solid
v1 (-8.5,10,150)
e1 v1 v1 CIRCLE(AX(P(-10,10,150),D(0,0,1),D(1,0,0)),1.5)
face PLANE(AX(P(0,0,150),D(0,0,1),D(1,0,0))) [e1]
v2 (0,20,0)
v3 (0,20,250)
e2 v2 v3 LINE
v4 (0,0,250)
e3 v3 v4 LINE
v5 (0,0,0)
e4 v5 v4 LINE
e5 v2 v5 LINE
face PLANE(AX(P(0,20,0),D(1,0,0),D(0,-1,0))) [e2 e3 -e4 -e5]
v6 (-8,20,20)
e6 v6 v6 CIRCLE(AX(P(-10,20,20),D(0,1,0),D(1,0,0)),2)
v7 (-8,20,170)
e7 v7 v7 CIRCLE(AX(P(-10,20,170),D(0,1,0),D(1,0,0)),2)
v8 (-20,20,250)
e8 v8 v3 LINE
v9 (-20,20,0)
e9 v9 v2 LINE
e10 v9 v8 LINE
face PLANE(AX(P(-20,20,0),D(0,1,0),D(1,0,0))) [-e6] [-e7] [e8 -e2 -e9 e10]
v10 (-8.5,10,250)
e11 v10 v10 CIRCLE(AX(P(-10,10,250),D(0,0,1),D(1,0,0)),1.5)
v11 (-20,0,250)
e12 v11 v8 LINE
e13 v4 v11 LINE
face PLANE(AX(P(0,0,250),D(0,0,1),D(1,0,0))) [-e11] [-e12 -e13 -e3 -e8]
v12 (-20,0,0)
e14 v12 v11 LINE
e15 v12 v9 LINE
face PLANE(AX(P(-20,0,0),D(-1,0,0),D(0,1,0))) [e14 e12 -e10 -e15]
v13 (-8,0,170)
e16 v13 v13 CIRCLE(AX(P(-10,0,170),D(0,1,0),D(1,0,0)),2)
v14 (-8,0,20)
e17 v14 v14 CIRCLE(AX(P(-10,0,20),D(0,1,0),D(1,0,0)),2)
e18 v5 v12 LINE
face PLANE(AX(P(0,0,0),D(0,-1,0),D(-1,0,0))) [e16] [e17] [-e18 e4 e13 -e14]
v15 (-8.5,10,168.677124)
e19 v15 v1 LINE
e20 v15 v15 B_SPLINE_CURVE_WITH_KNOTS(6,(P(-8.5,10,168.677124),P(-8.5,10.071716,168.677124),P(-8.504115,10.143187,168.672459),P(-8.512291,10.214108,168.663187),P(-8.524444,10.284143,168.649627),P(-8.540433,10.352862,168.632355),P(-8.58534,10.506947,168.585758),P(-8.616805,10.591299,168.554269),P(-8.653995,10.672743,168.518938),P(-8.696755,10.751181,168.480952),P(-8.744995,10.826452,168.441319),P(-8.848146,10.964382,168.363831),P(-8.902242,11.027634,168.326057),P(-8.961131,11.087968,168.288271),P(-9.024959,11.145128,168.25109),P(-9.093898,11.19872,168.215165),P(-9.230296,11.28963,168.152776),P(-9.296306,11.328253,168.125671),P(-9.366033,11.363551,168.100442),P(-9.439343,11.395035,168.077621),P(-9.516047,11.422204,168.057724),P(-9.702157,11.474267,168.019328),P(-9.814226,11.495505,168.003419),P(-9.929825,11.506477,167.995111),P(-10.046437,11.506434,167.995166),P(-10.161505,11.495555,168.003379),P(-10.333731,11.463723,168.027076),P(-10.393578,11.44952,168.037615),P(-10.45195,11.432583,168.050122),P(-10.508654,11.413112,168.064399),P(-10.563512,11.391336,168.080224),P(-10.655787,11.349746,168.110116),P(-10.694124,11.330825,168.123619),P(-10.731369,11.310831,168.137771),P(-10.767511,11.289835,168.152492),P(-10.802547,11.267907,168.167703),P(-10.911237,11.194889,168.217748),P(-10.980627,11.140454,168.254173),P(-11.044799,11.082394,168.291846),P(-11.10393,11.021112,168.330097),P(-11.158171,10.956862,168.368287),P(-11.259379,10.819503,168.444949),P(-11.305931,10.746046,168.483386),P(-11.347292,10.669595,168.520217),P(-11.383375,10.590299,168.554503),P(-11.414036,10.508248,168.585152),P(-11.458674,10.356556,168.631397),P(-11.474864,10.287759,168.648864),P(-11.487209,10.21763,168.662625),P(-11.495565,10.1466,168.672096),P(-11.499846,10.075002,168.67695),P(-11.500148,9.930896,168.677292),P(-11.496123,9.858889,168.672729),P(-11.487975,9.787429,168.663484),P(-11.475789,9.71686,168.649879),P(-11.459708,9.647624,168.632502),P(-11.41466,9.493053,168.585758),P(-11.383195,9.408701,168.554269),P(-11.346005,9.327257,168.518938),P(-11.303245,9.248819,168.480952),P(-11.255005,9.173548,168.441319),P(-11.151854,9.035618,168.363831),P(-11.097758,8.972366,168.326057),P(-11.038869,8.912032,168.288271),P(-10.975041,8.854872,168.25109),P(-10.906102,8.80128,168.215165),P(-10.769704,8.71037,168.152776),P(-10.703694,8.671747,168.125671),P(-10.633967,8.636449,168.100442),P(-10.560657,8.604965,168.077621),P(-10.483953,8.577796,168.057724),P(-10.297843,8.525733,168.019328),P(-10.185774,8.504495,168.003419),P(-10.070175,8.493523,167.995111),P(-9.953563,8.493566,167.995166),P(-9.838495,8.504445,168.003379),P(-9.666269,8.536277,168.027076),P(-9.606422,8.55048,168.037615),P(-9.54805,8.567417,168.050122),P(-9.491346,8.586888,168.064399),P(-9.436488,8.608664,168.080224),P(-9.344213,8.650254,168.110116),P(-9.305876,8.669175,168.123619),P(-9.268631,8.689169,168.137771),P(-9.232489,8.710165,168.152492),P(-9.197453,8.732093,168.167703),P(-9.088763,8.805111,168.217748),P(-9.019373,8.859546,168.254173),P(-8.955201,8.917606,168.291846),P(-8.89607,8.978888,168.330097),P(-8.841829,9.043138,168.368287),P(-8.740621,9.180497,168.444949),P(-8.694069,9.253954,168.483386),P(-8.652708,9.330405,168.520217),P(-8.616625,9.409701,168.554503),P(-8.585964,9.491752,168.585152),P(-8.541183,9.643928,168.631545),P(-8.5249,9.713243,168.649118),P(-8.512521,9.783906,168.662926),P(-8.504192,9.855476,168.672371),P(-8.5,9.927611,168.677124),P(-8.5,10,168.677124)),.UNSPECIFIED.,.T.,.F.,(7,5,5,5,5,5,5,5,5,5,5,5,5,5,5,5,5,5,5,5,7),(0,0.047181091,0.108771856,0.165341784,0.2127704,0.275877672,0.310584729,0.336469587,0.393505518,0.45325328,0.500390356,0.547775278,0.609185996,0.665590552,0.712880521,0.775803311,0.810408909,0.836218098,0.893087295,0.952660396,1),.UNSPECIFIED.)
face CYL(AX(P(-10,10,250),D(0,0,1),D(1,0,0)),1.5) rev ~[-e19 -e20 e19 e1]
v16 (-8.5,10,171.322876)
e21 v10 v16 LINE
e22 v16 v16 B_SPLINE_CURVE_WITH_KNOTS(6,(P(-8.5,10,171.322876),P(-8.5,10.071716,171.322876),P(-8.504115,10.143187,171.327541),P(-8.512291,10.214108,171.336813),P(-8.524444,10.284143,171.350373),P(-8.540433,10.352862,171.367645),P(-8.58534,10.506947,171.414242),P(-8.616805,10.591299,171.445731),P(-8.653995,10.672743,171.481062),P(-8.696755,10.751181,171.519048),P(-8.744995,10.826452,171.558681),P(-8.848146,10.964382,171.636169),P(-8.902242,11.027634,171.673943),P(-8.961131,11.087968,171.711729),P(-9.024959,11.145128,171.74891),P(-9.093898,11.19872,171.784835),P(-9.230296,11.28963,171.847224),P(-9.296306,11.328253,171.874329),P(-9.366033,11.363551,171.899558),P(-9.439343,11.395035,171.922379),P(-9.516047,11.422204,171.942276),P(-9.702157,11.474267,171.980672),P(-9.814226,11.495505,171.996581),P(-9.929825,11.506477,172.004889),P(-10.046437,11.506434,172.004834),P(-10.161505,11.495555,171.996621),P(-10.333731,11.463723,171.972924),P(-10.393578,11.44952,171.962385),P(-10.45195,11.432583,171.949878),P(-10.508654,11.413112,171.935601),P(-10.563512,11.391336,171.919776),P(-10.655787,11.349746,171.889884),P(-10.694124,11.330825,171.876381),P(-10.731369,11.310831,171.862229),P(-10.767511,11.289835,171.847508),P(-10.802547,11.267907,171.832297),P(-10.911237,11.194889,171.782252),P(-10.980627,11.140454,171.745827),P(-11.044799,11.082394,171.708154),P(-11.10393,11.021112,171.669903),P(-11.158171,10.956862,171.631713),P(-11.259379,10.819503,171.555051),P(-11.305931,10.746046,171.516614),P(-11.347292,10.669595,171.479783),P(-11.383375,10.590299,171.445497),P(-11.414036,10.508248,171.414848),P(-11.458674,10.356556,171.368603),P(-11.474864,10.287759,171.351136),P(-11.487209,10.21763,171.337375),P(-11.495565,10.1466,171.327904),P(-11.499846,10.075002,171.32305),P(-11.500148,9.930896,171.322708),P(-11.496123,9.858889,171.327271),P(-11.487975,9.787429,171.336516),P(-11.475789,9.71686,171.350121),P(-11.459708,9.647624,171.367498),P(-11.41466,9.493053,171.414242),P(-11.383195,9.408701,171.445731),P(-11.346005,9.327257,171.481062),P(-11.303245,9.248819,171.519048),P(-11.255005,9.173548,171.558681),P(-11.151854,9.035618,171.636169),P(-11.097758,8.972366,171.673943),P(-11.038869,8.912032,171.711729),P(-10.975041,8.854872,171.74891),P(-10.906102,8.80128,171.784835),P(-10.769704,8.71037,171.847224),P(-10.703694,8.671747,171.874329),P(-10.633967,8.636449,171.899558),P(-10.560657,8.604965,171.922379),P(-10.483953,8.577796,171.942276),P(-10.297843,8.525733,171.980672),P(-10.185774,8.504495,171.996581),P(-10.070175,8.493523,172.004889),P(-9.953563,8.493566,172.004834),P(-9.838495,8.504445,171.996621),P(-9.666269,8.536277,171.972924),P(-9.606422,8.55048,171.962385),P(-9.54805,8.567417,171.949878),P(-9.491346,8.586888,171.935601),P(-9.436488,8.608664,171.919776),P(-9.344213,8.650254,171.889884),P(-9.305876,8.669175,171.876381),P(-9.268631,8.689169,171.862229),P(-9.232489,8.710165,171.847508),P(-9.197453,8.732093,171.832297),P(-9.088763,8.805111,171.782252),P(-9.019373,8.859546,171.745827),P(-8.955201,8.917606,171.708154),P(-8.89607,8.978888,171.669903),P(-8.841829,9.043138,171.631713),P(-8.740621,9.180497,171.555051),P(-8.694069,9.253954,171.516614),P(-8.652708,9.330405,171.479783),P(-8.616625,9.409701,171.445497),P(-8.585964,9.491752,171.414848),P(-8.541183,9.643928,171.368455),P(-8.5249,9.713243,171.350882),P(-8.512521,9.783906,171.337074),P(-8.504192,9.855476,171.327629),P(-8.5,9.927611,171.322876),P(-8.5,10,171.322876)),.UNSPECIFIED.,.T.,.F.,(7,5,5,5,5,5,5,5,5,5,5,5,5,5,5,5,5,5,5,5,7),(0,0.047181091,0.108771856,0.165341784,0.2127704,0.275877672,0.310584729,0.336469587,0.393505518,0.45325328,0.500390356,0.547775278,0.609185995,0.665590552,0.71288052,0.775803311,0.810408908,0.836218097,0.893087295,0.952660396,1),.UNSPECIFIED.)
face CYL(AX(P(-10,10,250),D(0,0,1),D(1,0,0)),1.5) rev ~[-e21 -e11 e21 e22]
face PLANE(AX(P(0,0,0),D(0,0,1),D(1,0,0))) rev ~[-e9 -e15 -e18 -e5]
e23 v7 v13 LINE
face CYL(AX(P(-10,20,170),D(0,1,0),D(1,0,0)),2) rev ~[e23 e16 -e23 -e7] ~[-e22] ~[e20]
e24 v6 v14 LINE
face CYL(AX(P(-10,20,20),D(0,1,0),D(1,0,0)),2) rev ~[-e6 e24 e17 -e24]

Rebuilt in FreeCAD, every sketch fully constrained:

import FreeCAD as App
import Part
import Sketcher


def add_polygon(sketch, points):
    """Adds a closed chain of lines whose ends are joined by coincident constraints."""
    first, n = sketch.GeometryCount, len(points)
    for a, b in zip(points, points[1:] + points[:1]):
        sketch.addGeometry(Part.LineSegment(App.Vector(*a, 0), App.Vector(*b, 0)), False)
    for i in range(n):
        sketch.addConstraint(Sketcher.Constraint("Coincident", first + i, 2, first + (i + 1) % n, 1))

doc = App.newDocument("Part")
body = doc.addObject("PartDesign::Body", "Body")

sketch1 = body.newObject("Sketcher::SketchObject", "Sketch")
sketch1.AttachmentSupport = (doc.getObject("XY_Plane"), [""])
sketch1.MapMode = "FlatFace"
add_polygon(sketch1, [(-20, 0), (0, 0), (0, 20), (-20, 20)])
sketch1.addConstraint(Sketcher.Constraint("Horizontal", 0))
sketch1.addConstraint(Sketcher.Constraint("Vertical", 1))
sketch1.addConstraint(Sketcher.Constraint("Horizontal", 2))
sketch1.addConstraint(Sketcher.Constraint("Vertical", 3))
sketch1.addConstraint(Sketcher.Constraint("Coincident", 0, 2, -1, 1))
sketch1.addConstraint(Sketcher.Constraint("Equal", 2, 1))
sketch1.addConstraint(Sketcher.Constraint("DistanceX", 0, 1, 0, 2, 20.0))
pad1 = body.newObject("PartDesign::Pad", "Pad")
pad1.Profile = sketch1
pad1.Length = 250

sketch2 = body.newObject("Sketcher::SketchObject", "Sketch001")
sketch2.AttachmentSupport = (doc.getObject("XY_Plane"), [""])
sketch2.MapMode = "FlatFace"
sketch2.AttachmentOffset = App.Placement(App.Vector(0, 0, 250), App.Rotation())
sketch2.addGeometry(Part.Circle(App.Vector(-10, 10, 0), App.Vector(0, 0, 1), 1.5), False)
sketch2.addConstraint(Sketcher.Constraint("Diameter", 0, 3.0))
sketch2.addConstraint(Sketcher.Constraint("DistanceX", 0, 3, -1, 1, 10.0))
sketch2.addConstraint(Sketcher.Constraint("DistanceY", -1, 1, 0, 3, 10.0))
pocket1 = body.newObject("PartDesign::Pocket", "Pocket")
pocket1.Profile = sketch2
pocket1.Length = 100

sketch3 = body.newObject("Sketcher::SketchObject", "Sketch002")
sketch3.AttachmentSupport = (doc.getObject("XZ_Plane"), [""])
sketch3.MapMode = "FlatFace"
sketch3.AttachmentOffset = App.Placement(App.Vector(0, 0, -20), App.Rotation())
sketch3.addGeometry(Part.Circle(App.Vector(-10, 20, 0), App.Vector(0, 0, 1), 2), False)
sketch3.addGeometry(Part.Circle(App.Vector(-10, 170, 0), App.Vector(0, 0, 1), 2), False)
sketch3.addConstraint(Sketcher.Constraint("Equal", 0, 1))
sketch3.addConstraint(Sketcher.Constraint("Vertical", 0, 3, 1, 3))
sketch3.addConstraint(Sketcher.Constraint("Diameter", 0, 4.0))
sketch3.addConstraint(Sketcher.Constraint("DistanceY", -1, 1, 0, 3, 20.0))
sketch3.addConstraint(Sketcher.Constraint("DistanceY", 0, 3, 1, 3, 150.0))
sketch3.addConstraint(Sketcher.Constraint("DistanceX", 0, 3, -1, 1, 10.0))
pocket2 = body.newObject("PartDesign::Pocket", "Pocket001")
pocket2.Profile = sketch3
pocket2.Type = "ThroughAll"
pocket2.Reversed = True

doc.recompute()
